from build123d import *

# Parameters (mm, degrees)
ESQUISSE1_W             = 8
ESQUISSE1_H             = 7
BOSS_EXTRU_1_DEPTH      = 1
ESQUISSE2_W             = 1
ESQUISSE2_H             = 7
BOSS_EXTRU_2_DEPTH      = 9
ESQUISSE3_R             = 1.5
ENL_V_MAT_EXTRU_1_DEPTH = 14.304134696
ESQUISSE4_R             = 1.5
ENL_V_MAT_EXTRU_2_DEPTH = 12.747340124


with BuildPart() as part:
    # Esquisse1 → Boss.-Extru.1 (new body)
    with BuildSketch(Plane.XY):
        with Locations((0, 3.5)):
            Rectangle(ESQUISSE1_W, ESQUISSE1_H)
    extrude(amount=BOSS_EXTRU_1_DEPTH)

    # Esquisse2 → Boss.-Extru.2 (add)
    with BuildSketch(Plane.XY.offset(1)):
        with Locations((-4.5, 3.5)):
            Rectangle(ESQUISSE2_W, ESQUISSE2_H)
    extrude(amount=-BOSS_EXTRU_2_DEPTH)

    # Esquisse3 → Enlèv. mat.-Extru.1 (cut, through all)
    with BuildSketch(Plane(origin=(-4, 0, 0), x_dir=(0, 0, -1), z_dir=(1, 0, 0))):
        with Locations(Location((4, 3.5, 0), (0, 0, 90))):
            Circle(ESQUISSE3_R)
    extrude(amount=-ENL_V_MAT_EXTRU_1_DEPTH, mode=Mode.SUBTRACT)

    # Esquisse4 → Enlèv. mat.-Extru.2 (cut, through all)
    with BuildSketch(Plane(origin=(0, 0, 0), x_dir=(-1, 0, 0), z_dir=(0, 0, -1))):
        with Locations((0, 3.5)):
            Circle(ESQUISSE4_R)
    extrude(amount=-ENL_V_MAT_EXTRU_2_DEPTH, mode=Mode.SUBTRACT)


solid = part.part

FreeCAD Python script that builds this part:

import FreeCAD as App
import Part
import Sketcher


def add_polygon(sketch, points):
    """Adds a closed chain of lines whose ends are joined by coincident constraints."""
    first, n = sketch.GeometryCount, len(points)
    for a, b in zip(points, points[1:] + points[:1]):
        sketch.addGeometry(Part.LineSegment(App.Vector(*a, 0), App.Vector(*b, 0)), False)
    for i in range(n):
        sketch.addConstraint(Sketcher.Constraint("Coincident", first + i, 2, first + (i + 1) % n, 1))

doc = App.newDocument("Part")
body = doc.addObject("PartDesign::Body", "Body")

sketch1 = doc.addObject("Sketcher::SketchObject", "Sketch")
body.addObject(sketch1)
sketch1.AttachmentSupport = (doc.XY_Plane, [""])
sketch1.MapMode = "FlatFace"
add_polygon(sketch1, [(-4, 7), (-4, 0), (4, 0), (4, 7)])
sketch1.addConstraint(Sketcher.Constraint("Vertical", 0))
sketch1.addConstraint(Sketcher.Constraint("Horizontal", 1))
sketch1.addConstraint(Sketcher.Constraint("Vertical", 2))
sketch1.addConstraint(Sketcher.Constraint("Horizontal", 3))
sketch1.addConstraint(Sketcher.Constraint("Symmetric", 0, 2, 1, 2, -1, 1))
sketch1.addConstraint(Sketcher.Constraint("DistanceX", 1, 1, 1, 2, 8.0))
sketch1.addConstraint(Sketcher.Constraint("DistanceY", 0, 2, 0, 1, 7.0))
pad1 = doc.addObject("PartDesign::Pad", "Pad")
body.addObject(pad1)
pad1.Profile = sketch1
pad1.Length = 1

sketch2 = doc.addObject("Sketcher::SketchObject", "Sketch001")
body.addObject(sketch2)
sketch2.AttachmentSupport = (doc.XY_Plane, [""])
sketch2.MapMode = "FlatFace"
sketch2.AttachmentOffset = App.Placement(App.Vector(0, 0, 1), App.Rotation())
add_polygon(sketch2, [(-5, 7), (-5, 0), (-4, 0), (-4, 7)])
sketch2.addConstraint(Sketcher.Constraint("Vertical", 0))
sketch2.addConstraint(Sketcher.Constraint("Horizontal", 1))
sketch2.addConstraint(Sketcher.Constraint("Vertical", 2))
sketch2.addConstraint(Sketcher.Constraint("Horizontal", 3))
sketch2.addConstraint(Sketcher.Constraint("PointOnObject", 0, 2, -1))
sketch2.addConstraint(Sketcher.Constraint("DistanceX", 1, 1, 1, 2, 1.0))
sketch2.addConstraint(Sketcher.Constraint("DistanceY", 0, 2, 0, 1, 7.0))
sketch2.addConstraint(Sketcher.Constraint("DistanceX", 0, 2, -1, 1, 5.0))
pad2 = doc.addObject("PartDesign::Pad", "Pad001")
body.addObject(pad2)
pad2.Profile = sketch2
pad2.Length = 9
pad2.Reversed = True

sketch3 = doc.addObject("Sketcher::SketchObject", "Sketch002")
body.addObject(sketch3)
sketch3.AttachmentSupport = (doc.YZ_Plane, [""])
sketch3.MapMode = "FlatFace"
sketch3.AttachmentOffset = App.Placement(App.Vector(0, 0, -4), App.Rotation())
sketch3.addGeometry(Part.Circle(App.Vector(3.5, -4, 0), App.Vector(0, 0, 1), 1.5), False)
sketch3.addConstraint(Sketcher.Constraint("Diameter", 0, 3.0))
sketch3.addConstraint(Sketcher.Constraint("DistanceY", 0, 3, -1, 1, 4.0))
sketch3.addConstraint(Sketcher.Constraint("DistanceX", -1, 1, 0, 3, 3.5))
pocket1 = doc.addObject("PartDesign::Pocket", "Pocket")
body.addObject(pocket1)
pocket1.Profile = sketch3
pocket1.Type = "ThroughAll"

sketch4 = doc.addObject("Sketcher::SketchObject", "Sketch003")
body.addObject(sketch4)
sketch4.AttachmentSupport = (doc.XY_Plane, [""])
sketch4.MapMode = "FlatFace"
sketch4.addGeometry(Part.Circle(App.Vector(0, 3.5, 0), App.Vector(0, 0, 1), 1.5), False)
sketch4.addConstraint(Sketcher.Constraint("PointOnObject", 0, 3, -2))
sketch4.addConstraint(Sketcher.Constraint("Diameter", 0, 3.0))
sketch4.addConstraint(Sketcher.Constraint("DistanceY", -1, 1, 0, 3, 3.5))
pocket2 = doc.addObject("PartDesign::Pocket", "Pocket001")
body.addObject(pocket2)
pocket2.Profile = sketch4
pocket2.Type = "ThroughAll"
pocket2.Reversed = True

doc.recompute()
